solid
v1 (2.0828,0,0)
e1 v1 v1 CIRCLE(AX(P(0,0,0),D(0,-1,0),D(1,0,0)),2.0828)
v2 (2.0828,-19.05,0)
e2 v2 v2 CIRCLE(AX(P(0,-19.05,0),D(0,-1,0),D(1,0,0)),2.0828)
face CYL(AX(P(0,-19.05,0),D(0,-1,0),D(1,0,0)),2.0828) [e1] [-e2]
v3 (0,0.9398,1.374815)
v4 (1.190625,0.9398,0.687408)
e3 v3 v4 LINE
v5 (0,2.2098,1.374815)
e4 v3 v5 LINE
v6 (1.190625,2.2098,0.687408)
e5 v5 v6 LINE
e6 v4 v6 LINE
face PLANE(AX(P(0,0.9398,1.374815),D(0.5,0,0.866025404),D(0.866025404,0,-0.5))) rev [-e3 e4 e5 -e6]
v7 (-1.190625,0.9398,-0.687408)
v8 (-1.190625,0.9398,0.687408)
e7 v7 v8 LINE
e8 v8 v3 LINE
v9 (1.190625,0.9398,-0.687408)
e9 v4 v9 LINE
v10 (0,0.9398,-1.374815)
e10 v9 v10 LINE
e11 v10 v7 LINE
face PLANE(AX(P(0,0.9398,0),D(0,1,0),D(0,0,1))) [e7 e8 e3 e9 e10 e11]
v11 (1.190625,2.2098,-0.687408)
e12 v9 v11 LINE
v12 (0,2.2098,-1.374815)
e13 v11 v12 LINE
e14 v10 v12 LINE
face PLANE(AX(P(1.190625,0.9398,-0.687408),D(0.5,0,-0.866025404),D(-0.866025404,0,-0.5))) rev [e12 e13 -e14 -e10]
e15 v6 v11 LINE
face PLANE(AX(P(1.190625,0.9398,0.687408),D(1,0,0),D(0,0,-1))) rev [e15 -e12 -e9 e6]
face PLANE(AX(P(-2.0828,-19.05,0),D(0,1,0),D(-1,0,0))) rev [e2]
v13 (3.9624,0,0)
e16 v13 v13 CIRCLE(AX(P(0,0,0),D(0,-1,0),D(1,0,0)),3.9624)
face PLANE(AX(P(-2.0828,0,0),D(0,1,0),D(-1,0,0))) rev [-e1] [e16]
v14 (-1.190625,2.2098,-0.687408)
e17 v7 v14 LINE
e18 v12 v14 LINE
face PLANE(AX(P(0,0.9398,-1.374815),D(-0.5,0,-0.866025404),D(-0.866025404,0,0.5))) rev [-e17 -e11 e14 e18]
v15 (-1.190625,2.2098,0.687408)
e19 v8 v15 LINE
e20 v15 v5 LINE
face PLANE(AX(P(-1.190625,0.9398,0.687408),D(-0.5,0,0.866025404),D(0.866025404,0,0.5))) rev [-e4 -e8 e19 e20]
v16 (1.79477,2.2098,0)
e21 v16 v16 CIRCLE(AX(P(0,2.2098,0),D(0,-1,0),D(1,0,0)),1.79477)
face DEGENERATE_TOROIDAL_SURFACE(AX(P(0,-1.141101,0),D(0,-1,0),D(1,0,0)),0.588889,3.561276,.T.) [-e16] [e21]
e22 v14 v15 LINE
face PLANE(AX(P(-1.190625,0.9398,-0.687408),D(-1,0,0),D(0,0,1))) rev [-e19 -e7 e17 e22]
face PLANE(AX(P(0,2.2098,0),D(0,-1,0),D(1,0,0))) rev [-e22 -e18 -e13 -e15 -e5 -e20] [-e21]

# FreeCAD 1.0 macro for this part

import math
import FreeCAD as App
import Part
import Sketcher
from FreeCAD import Vector
Q = App.Units.Quantity


def add_polygon(sketch, points):
    """Adds a closed chain of lines whose ends are joined by coincident constraints."""
    first, n = sketch.GeometryCount, len(points)
    for a, b in zip(points, points[1:] + points[:1]):
        sketch.addGeometry(Part.LineSegment(App.Vector(*a, 0), App.Vector(*b, 0)), False)
    for i in range(n):
        sketch.addConstraint(Sketcher.Constraint("Coincident", first + i, 2, first + (i + 1) % n, 1))

doc = App.newDocument("Part")
body = doc.addObject("PartDesign::Body", "Body")

# Sketch on XY plane
sketch1 = body.newObject("Sketcher::SketchObject", "Sketch")
sketch1.AttachmentSupport = (doc.getObject("XY_Plane"), [""])
sketch1.MapMode = "FlatFace"
sketch1.addGeometry(Part.LineSegment(Vector(-4, 0, 0), Vector(-2.1, 0, 0)), False)
sketch1.addGeometry(Part.LineSegment(Vector(-2.1, 0, 0), Vector(-2.1, -19.1, 0)), False)
sketch1.addGeometry(Part.LineSegment(Vector(-2.1, -19.1, 0), Vector(0, -19.1, 0)), False)
sketch1.addGeometry(Part.LineSegment(Vector(0, -19.1, 0), Vector(0, 2.2, 0)), False)
sketch1.addGeometry(Part.LineSegment(Vector(0, 2.2, 0), Vector(-1.8, 2.2, 0)), False)
sketch1.addGeometry(Part.ArcOfCircle(Part.Circle(Vector(-0.6, -1.1, 0), Vector(0, 0, 1), 3.6), math.radians(110), math.radians(161)), False)
sketch1.addConstraint(Sketcher.Constraint("Coincident", 0, 2, 1, 1))
sketch1.addConstraint(Sketcher.Constraint("Coincident", 1, 2, 2, 1))
sketch1.addConstraint(Sketcher.Constraint("Coincident", 2, 2, 3, 1))
sketch1.addConstraint(Sketcher.Constraint("Coincident", 3, 2, 4, 1))
sketch1.addConstraint(Sketcher.Constraint("Coincident", 4, 2, 5, 1))
sketch1.addConstraint(Sketcher.Constraint("Coincident", 5, 2, 0, 1))
sketch1.addConstraint(Sketcher.Constraint("Horizontal", 0))
sketch1.addConstraint(Sketcher.Constraint("Vertical", 1))
sketch1.addConstraint(Sketcher.Constraint("Horizontal", 2))
sketch1.addConstraint(Sketcher.Constraint("Vertical", 3))
sketch1.addConstraint(Sketcher.Constraint("Horizontal", 4))
sketch1.addConstraint(Sketcher.Constraint("PointOnObject", 0, 2, -1))
sketch1.addConstraint(Sketcher.Constraint("PointOnObject", 2, 2, -2))
sketch1.addConstraint(Sketcher.Constraint("DistanceY", 1, 2, 1, 1, Q("0.75 in")))
sketch1.addConstraint(Sketcher.Constraint("DistanceX", 0, 1, 0, 2, Q("0.074 in")))
sketch1.addConstraint(Sketcher.Constraint("DistanceX", 2, 1, 2, 2, Q("0.082 in")))
sketch1.addConstraint(Sketcher.Constraint("DistanceY", 3, 1, 3, 2, Q("0.837 in")))
sketch1.addConstraint(Sketcher.Constraint("Radius", 5, Q("3.561276 mm")))
sketch1.addConstraint(Sketcher.Constraint("DistanceX", 4, 2, 4, 1, Q("1.79477 mm")))
revolution = body.newObject("PartDesign::Revolution", "Revolution")
revolution.Profile = sketch1
revolution.ReferenceAxis = (sketch1, ["V_Axis"])
revolution.Angle = 360

# Sketch on XZ plane
sketch2 = body.newObject("Sketcher::SketchObject", "Sketch001")
sketch2.AttachmentSupport = (doc.getObject("XZ_Plane"), [""])
sketch2.MapMode = "FlatFace"
sketch2.AttachmentOffset = App.Placement(Vector(0, 0, -0.087 * 25.4), App.Rotation())
add_polygon(sketch2, [(-1.2, -0.7), (-1.2, 0.7), (0, 1.4), (1.2, 0.7), (1.2, -0.7), (0, -1.4)])  # lines 0-5
sketch2.addConstraint(Sketcher.Constraint("Vertical", 0))
sketch2.addConstraint(Sketcher.Constraint("Vertical", 3))
sketch2.addConstraint(Sketcher.Constraint("Symmetric", 0, 2, 3, 2, -1, 1))
sketch2.addConstraint(Sketcher.Constraint("Symmetric", 1, 2, 4, 2, -1, 1))
sketch2.addConstraint(Sketcher.Constraint("PointOnObject", 1, 2, -2))
sketch2.addConstraint(Sketcher.Constraint("Parallel", 2, 5))
sketch2.addConstraint(Sketcher.Constraint("Horizontal", 0, 2, 2, 2))
sketch2.addConstraint(Sketcher.Constraint("Angle", 1, Q("30 deg")))
sketch2.addConstraint(Sketcher.Constraint("DistanceX", 0, 2, -1, 1, Q("0.046875 in")))
sketch2.addConstraint(Sketcher.Constraint("DistanceY", 0, 1, 0, 2, Q("1.374815 mm")))
pocket1 = body.newObject("PartDesign::Pocket", "Pocket")
pocket1.Profile = sketch2
pocket1.Length = Q("0.05 in")
pocket1.Reversed = True

doc.recompute()
